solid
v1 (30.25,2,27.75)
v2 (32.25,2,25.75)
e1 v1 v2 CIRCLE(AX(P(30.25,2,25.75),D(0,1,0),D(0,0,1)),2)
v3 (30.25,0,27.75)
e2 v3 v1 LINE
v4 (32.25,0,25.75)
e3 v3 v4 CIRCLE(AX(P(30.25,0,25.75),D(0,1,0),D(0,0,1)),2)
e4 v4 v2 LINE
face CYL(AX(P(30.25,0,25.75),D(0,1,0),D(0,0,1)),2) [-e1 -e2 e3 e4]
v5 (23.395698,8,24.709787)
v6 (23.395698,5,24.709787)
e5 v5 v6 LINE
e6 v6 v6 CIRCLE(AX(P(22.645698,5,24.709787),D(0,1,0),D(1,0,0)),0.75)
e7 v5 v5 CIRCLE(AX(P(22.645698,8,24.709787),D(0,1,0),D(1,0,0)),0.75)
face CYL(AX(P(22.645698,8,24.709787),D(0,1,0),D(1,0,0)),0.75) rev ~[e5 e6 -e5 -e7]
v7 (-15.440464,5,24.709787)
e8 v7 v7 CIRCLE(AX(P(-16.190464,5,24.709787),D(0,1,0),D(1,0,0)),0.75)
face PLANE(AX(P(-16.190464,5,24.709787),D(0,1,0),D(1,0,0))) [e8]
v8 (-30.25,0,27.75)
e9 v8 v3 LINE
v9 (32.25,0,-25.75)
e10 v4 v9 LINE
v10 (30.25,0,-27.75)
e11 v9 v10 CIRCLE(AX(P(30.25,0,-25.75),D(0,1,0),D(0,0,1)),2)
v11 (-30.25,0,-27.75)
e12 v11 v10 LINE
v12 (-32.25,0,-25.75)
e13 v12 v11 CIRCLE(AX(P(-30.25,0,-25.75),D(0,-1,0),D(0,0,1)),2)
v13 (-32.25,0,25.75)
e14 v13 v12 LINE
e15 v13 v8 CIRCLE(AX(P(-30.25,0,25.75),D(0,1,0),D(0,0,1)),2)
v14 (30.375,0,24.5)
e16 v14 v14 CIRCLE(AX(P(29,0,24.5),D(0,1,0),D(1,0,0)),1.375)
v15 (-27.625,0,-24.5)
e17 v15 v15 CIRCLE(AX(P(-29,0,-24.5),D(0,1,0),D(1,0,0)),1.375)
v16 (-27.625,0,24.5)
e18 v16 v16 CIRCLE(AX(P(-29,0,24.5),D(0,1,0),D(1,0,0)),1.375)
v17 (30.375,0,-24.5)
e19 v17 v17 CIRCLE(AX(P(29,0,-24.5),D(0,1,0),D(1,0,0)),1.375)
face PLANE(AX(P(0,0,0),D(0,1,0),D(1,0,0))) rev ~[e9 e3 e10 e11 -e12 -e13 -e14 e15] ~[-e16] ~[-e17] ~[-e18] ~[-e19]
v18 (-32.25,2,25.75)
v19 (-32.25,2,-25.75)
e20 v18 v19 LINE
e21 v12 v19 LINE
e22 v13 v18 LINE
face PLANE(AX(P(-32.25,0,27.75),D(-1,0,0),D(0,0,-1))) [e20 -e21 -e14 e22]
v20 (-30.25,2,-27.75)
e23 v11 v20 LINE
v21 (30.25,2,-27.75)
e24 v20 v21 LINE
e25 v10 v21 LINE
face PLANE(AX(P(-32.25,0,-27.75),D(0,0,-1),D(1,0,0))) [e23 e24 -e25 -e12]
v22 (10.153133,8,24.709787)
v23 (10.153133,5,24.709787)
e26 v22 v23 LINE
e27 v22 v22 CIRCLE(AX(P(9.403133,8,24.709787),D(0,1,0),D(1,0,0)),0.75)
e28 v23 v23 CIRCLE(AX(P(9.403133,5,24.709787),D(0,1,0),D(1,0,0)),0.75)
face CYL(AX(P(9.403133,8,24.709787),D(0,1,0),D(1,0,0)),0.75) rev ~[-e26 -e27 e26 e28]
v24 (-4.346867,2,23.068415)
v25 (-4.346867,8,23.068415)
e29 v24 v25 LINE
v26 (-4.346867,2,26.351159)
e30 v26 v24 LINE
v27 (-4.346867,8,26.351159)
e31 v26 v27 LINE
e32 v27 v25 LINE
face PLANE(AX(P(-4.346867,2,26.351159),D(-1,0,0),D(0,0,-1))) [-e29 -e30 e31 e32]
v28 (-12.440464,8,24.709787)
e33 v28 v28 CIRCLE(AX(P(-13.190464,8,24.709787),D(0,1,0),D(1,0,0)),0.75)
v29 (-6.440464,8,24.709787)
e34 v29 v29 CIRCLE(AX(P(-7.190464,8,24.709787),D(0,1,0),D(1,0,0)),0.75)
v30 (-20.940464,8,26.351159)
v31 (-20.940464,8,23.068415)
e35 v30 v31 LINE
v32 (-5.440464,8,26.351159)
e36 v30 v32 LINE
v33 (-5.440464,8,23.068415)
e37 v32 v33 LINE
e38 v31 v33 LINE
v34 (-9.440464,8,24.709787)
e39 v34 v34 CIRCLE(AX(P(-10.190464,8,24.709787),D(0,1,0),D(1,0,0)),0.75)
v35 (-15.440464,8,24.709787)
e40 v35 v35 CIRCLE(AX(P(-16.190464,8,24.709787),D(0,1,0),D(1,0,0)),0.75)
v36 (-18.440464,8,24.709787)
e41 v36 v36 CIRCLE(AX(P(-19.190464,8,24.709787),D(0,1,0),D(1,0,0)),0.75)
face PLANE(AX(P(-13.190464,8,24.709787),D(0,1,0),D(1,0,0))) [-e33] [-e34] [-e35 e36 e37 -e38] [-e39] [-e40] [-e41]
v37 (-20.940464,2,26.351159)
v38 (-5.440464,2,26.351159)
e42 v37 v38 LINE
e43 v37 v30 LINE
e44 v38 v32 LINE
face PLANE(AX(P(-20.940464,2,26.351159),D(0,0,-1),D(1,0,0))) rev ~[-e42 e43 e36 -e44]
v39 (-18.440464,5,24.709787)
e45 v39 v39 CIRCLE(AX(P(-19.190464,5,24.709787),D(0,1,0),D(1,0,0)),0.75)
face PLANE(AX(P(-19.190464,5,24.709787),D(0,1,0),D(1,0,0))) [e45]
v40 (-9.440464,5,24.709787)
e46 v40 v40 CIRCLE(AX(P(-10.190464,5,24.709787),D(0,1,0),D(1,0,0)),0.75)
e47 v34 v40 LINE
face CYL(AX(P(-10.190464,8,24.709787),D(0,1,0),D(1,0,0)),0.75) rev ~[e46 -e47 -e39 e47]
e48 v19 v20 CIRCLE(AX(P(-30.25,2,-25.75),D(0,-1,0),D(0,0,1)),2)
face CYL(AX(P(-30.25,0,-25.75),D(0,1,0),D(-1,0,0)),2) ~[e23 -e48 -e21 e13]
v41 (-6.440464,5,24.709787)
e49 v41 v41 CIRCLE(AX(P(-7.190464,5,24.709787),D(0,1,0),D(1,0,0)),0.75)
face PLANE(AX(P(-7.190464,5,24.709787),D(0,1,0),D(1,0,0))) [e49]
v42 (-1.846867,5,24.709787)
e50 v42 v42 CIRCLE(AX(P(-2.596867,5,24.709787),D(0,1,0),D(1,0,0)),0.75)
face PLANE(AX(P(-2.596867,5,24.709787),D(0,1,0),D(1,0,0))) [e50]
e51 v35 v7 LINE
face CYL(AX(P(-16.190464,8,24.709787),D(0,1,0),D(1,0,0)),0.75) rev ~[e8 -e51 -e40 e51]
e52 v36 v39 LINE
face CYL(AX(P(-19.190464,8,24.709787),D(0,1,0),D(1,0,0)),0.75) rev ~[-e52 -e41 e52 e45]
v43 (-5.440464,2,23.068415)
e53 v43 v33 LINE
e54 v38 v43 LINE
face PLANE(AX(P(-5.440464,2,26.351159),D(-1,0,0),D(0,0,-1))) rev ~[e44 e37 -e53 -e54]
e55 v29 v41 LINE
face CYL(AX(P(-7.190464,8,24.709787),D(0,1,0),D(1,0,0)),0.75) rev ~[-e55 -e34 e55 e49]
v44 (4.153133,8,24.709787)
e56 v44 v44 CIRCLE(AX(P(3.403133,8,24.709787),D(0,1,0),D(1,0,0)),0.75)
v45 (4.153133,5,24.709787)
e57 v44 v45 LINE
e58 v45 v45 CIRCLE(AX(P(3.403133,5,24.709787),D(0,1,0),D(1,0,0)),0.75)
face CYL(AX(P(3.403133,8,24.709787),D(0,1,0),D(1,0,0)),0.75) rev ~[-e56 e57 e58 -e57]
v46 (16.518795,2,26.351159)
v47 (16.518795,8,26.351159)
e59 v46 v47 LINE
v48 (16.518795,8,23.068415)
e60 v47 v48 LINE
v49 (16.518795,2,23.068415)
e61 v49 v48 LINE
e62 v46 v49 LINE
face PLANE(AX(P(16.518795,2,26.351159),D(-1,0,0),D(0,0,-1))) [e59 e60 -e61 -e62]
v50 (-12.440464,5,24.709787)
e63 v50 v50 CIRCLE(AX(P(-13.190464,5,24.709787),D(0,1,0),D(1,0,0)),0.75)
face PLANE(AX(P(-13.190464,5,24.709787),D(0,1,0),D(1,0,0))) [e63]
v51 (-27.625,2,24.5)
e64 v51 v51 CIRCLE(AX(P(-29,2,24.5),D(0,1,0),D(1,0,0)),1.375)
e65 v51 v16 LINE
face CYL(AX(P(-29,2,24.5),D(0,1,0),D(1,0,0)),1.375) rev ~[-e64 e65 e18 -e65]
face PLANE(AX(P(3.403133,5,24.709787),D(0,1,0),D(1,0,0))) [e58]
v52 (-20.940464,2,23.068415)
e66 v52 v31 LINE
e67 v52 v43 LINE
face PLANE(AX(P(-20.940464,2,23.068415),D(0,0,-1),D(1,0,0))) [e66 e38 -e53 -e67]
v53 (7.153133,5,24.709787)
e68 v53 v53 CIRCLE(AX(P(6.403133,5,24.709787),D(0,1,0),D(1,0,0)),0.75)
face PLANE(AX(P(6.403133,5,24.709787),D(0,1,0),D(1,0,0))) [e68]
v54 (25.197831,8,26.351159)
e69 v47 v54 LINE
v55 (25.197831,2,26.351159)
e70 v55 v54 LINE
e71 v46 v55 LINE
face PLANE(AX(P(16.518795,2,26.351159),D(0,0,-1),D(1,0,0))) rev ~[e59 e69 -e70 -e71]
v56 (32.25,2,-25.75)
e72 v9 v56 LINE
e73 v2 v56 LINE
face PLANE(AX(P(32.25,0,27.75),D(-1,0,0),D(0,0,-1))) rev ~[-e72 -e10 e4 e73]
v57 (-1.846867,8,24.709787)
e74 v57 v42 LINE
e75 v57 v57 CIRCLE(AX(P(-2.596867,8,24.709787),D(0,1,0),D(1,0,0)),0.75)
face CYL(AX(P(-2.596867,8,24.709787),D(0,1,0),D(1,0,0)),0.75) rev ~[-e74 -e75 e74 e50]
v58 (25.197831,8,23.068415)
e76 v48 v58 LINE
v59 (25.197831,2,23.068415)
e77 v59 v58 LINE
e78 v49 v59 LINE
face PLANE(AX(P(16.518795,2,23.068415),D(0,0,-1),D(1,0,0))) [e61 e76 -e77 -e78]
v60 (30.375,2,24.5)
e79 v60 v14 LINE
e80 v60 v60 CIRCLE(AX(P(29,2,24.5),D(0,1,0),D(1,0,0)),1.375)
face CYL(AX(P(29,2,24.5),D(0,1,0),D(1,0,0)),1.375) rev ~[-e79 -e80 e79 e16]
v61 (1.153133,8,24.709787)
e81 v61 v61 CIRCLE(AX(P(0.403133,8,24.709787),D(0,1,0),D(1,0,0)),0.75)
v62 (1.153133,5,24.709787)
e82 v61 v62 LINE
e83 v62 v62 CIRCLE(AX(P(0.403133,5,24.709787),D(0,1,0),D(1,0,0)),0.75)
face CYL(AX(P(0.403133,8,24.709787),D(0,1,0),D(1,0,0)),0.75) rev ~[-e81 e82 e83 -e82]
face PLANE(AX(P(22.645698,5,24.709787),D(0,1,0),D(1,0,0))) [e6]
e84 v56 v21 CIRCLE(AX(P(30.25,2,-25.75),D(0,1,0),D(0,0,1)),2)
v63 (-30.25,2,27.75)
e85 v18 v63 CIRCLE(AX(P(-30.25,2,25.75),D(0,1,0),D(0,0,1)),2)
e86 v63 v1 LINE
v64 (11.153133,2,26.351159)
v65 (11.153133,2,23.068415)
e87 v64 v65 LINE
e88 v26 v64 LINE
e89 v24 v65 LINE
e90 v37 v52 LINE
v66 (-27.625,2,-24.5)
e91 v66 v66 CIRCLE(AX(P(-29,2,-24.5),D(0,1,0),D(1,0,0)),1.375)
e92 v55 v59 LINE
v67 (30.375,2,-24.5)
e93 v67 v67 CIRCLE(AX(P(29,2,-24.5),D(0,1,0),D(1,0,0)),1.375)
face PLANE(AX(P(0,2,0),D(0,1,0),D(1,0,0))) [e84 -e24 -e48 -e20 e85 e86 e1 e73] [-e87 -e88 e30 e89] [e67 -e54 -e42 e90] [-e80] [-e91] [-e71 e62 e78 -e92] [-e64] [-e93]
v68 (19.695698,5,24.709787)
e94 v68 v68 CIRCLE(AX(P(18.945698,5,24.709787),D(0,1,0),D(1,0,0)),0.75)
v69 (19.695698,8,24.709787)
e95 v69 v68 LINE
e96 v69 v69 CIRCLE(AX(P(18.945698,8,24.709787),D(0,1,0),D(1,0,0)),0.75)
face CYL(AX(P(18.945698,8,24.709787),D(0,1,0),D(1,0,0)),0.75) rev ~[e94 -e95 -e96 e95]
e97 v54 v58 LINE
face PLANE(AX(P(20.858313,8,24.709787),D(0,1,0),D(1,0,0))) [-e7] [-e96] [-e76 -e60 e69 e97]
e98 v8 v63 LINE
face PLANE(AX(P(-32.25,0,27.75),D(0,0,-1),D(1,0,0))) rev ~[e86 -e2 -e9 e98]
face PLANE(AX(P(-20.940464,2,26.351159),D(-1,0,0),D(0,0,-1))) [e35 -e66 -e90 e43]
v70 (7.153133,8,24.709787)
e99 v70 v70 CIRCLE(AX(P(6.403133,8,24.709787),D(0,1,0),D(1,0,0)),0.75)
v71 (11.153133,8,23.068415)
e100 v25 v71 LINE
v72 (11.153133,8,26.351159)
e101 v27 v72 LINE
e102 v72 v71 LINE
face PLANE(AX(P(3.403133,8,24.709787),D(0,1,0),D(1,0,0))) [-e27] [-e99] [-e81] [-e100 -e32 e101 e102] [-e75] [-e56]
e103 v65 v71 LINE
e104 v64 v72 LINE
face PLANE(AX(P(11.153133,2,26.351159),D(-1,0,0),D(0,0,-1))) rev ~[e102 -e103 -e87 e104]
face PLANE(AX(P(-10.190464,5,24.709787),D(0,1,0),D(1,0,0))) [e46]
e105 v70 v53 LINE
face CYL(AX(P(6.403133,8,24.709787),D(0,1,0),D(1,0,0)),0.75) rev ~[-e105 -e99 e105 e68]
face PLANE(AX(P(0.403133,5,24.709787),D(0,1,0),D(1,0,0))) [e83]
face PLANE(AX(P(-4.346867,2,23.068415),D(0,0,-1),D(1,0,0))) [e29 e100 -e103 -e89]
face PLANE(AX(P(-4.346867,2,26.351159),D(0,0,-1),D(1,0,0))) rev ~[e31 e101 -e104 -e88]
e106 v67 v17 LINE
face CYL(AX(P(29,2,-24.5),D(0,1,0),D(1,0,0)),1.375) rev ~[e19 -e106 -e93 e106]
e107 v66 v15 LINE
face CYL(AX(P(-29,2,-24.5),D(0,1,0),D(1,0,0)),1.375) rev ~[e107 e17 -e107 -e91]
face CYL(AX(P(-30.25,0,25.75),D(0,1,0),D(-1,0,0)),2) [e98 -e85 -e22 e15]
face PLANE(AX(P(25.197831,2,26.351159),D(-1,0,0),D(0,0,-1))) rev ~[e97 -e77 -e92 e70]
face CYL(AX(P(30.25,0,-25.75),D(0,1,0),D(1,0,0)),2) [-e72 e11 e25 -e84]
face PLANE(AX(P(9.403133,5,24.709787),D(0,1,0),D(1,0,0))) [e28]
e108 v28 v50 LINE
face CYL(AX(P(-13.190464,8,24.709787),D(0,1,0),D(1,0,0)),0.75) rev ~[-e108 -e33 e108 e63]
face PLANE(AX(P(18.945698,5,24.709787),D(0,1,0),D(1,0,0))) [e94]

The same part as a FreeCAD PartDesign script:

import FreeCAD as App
import Part
import Sketcher
from FreeCAD import Vector


def edges_at(feature, points):
    """Names of the edges that pass closest to the given points."""
    edges = feature.Shape.Edges
    near = lambda p: min(range(len(edges)), key=lambda i: edges[i].distToShape(Part.Vertex(*p))[0])
    return sorted({f"Edge{near(p) + 1}" for p in points})


def add_polygon(sketch, points):
    """Adds a closed chain of lines whose ends are joined by coincident constraints."""
    first, n = sketch.GeometryCount, len(points)
    for a, b in zip(points, points[1:] + points[:1]):
        sketch.addGeometry(Part.LineSegment(App.Vector(*a, 0), App.Vector(*b, 0)), False)
    for i in range(n):
        sketch.addConstraint(Sketcher.Constraint("Coincident", first + i, 2, first + (i + 1) % n, 1))

doc = App.newDocument("Part")
body = doc.addObject("PartDesign::Body", "Body")

# Sketch on XZ plane
sketch1 = body.newObject("Sketcher::SketchObject", "Sketch")
sketch1.AttachmentSupport = (doc.getObject("XZ_Plane"), [""])
sketch1.MapMode = "FlatFace"
add_polygon(sketch1, [(-32, -28), (-32, 28), (32, 28), (32, -28)])  # lines 0-3
sketch1.addConstraint([
    Sketcher.Constraint("Vertical", 0),
    Sketcher.Constraint("Horizontal", 1),
    Sketcher.Constraint("Vertical", 2),
    Sketcher.Constraint("Horizontal", 3),
    Sketcher.Constraint("Symmetric", 0, 2, 2, 2, -1, 1),
    Sketcher.Constraint("DistanceX", 1, 1, 1, 2, 64.5),
    Sketcher.Constraint("DistanceY", 0, 1, 0, 2, 55.5),
])
pad1 = body.newObject("PartDesign::Pad", "Pad")
pad1.Profile = sketch1
pad1.Length = 2
pad1.Reversed = True
doc.recompute()

fillet = body.newObject("PartDesign::Fillet", "Fillet")
fillet.Base = (pad1, edges_at(pad1, [
    (32.25, 1, 27.75),
    (-32.25, 1, 27.75),
    (-32.25, 1, -27.75),
    (32.25, 1, -27.75),
]))
fillet.Radius = 2

# Sketch on XZ plane
sketch2 = body.newObject("Sketcher::SketchObject", "Sketch001")
sketch2.AttachmentSupport = (doc.getObject("XZ_Plane"), [""])
sketch2.MapMode = "FlatFace"
sketch2.AttachmentOffset = App.Placement(Vector(0, 0, -2), App.Rotation())
sketch2.addGeometry([
    Part.Circle(Vector(-29, -24.5, 0), Vector(0, 0, 1), 1.4),
    Part.Circle(Vector(29, -24.5, 0), Vector(0, 0, 1), 1.4),
    Part.Circle(Vector(29, 24.5, 0), Vector(0, 0, 1), 1.4),
    Part.Circle(Vector(-29, 24.5, 0), Vector(0, 0, 1), 1.4),
], False)
sketch2.addConstraint([
    Sketcher.Constraint("Equal", 0, 1),
    Sketcher.Constraint("Equal", 1, 2),
    Sketcher.Constraint("Equal", 2, 3),
    Sketcher.Constraint("Symmetric", 0, 3, 2, 3, -1, 1),
    Sketcher.Constraint("Symmetric", 1, 3, 3, 3, -1, 1),
    Sketcher.Constraint("Symmetric", 0, 3, 1, 3, -2),
    Sketcher.Constraint("Diameter", 0, 2.75),
    Sketcher.Constraint("DistanceX", 0, 3, -1, 1, 29.0),
    Sketcher.Constraint("DistanceY", 1, 3, 2, 3, 49.0),
])
pocket1 = body.newObject("PartDesign::Pocket", "Pocket")
pocket1.Profile = sketch2
pocket1.Length = 2
pocket1.Reversed = True

# Sketch on XZ plane
sketch3 = body.newObject("Sketcher::SketchObject", "Sketch002")
sketch3.AttachmentSupport = (doc.getObject("XZ_Plane"), [""])
sketch3.MapMode = "FlatFace"
sketch3.AttachmentOffset = App.Placement(Vector(0, 0, -2), App.Rotation())
add_polygon(sketch3, [(-20.9, 23.1), (-20.9, 26.4), (-5.4, 26.4), (-5.4, 23.1)])  # lines 0-3
add_polygon(sketch3, [(-4.3, 23.1), (-4.3, 26.4), (11.2, 26.4), (11.2, 23.1)])  # lines 4-7
add_polygon(sketch3, [(16.5, 23.1), (16.5, 26.4), (25.2, 26.4), (25.2, 23.1)])  # lines 8-11
sketch3.addConstraint([
    Sketcher.Constraint("Vertical", 0),
    Sketcher.Constraint("Horizontal", 1),
    Sketcher.Constraint("Vertical", 2),
    Sketcher.Constraint("Horizontal", 3),
    Sketcher.Constraint("Vertical", 4),
    Sketcher.Constraint("Horizontal", 5),
    Sketcher.Constraint("Vertical", 6),
    Sketcher.Constraint("Horizontal", 7),
    Sketcher.Constraint("Vertical", 8),
    Sketcher.Constraint("Horizontal", 9),
    Sketcher.Constraint("Vertical", 10),
    Sketcher.Constraint("Horizontal", 11),
    Sketcher.Constraint("Horizontal", 1, 2, 4, 2),
    Sketcher.Constraint("Horizontal", 3, 2, 6, 2),
    Sketcher.Constraint("Horizontal", 5, 2, 8, 2),
    Sketcher.Constraint("Horizontal", 7, 2, 10, 2),
    Sketcher.Constraint("Equal", 3, 5),
    Sketcher.Constraint("DistanceX", 1, 1, 1, 2, 15.5),
    Sketcher.Constraint("DistanceX", 9, 1, 9, 2, 8.679036),
    Sketcher.Constraint("DistanceY", 0, 1, 0, 2, 3.282744),
    Sketcher.Constraint("DistanceY", -1, 1, 0, 2, 26.351159),
    Sketcher.Constraint("DistanceX", -1, 1, 9, 2, 25.197831),
    Sketcher.Constraint("DistanceX", 5, 2, 8, 2, 5.365662),
    Sketcher.Constraint("DistanceX", 1, 2, 8, 2, 21.959259),
])
pad2 = body.newObject("PartDesign::Pad", "Pad001")
pad2.Profile = sketch3
pad2.Length = 6
pad2.Reversed = True

# Sketch on XZ plane
sketch4 = body.newObject("Sketcher::SketchObject", "Sketch003")
sketch4.AttachmentSupport = (doc.getObject("XZ_Plane"), [""])
sketch4.MapMode = "FlatFace"
sketch4.AttachmentOffset = App.Placement(Vector(0, 0, -8), App.Rotation())
sketch4.addGeometry(Part.Circle(Vector(-13.2, 24.7, 0), Vector(0, 0, 1), 0.8), False)
sketch4.addConstraint([
    Sketcher.Constraint("Diameter", 0, 1.5),
    Sketcher.Constraint("DistanceX", 0, 3, -1, 1, 13.190464),
    Sketcher.Constraint("DistanceY", -1, 1, 0, 3, 24.709787),
])
pocket2 = body.newObject("PartDesign::Pocket", "Pocket001")
pocket2.Profile = sketch4
pocket2.Length = 3
pocket2.Reversed = True
doc.recompute()

linearpattern = body.newObject("PartDesign::LinearPattern", "LinearPattern")
linearpattern.Originals = [pocket2]
linearpattern.Direction = (doc.getObject("X_Axis"), [""])
linearpattern.Mode = "offset"
linearpattern.Offset = 3
linearpattern.Occurrences = 3
linearpattern.Reversed = True
body.Tip = linearpattern
doc.recompute()

linearpattern2 = body.newObject("PartDesign::LinearPattern", "LinearPattern001")
linearpattern2.Originals = [pocket2]
linearpattern2.Direction = (doc.getObject("X_Axis"), [""])
linearpattern2.Mode = "offset"
linearpattern2.Offset = 3
linearpattern2.Occurrences = 3
body.Tip = linearpattern2

# Sketch on XZ plane
sketch5 = body.newObject("Sketcher::SketchObject", "Sketch004")
sketch5.AttachmentSupport = (doc.getObject("XZ_Plane"), [""])
sketch5.MapMode = "FlatFace"
sketch5.AttachmentOffset = App.Placement(Vector(0, 0, -8), App.Rotation())
sketch5.addGeometry(Part.Circle(Vector(3.4, 24.7, 0), Vector(0, 0, 1), 0.8), False)
sketch5.addConstraint([
    Sketcher.Constraint("Diameter", 0, 1.5),
    Sketcher.Constraint("DistanceX", -1, 1, 0, 3, 3.403133),
    Sketcher.Constraint("DistanceY", -1, 1, 0, 3, 24.709787),
])
pocket3 = body.newObject("PartDesign::Pocket", "Pocket002")
pocket3.Profile = sketch5
pocket3.Length = 3
pocket3.Reversed = True
doc.recompute()

linearpattern3 = body.newObject("PartDesign::LinearPattern", "LinearPattern002")
linearpattern3.Originals = [pocket3]
linearpattern3.Direction = (doc.getObject("X_Axis"), [""])
linearpattern3.Mode = "offset"
linearpattern3.Offset = 3
linearpattern3.Occurrences = 3
linearpattern3.Reversed = True
body.Tip = linearpattern3
doc.recompute()

linearpattern4 = body.newObject("PartDesign::LinearPattern", "LinearPattern003")
linearpattern4.Originals = [pocket3]
linearpattern4.Direction = (doc.getObject("X_Axis"), [""])
linearpattern4.Mode = "offset"
linearpattern4.Offset = 3
linearpattern4.Occurrences = 3
body.Tip = linearpattern4

# Sketch on XZ plane
sketch6 = body.newObject("Sketcher::SketchObject", "Sketch005")
sketch6.AttachmentSupport = (doc.getObject("XZ_Plane"), [""])
sketch6.MapMode = "FlatFace"
sketch6.AttachmentOffset = App.Placement(Vector(0, 0, -8), App.Rotation())
sketch6.addGeometry(Part.Circle(Vector(18.9, 24.7, 0), Vector(0, 0, 1), 0.8), False)
sketch6.addConstraint([
    Sketcher.Constraint("Diameter", 0, 1.5),
    Sketcher.Constraint("DistanceX", -1, 1, 0, 3, 18.945698),
    Sketcher.Constraint("DistanceY", -1, 1, 0, 3, 24.709787),
])
pocket4 = body.newObject("PartDesign::Pocket", "Pocket003")
pocket4.Profile = sketch6
pocket4.Length = 3
pocket4.Reversed = True
doc.recompute()

linearpattern5 = body.newObject("PartDesign::LinearPattern", "LinearPattern004")
linearpattern5.Originals = [pocket4]
linearpattern5.Direction = (doc.getObject("X_Axis"), [""])
linearpattern5.Mode = "offset"
linearpattern5.Offset = 3.7
linearpattern5.Occurrences = 2
body.Tip = linearpattern5

doc.recompute()
